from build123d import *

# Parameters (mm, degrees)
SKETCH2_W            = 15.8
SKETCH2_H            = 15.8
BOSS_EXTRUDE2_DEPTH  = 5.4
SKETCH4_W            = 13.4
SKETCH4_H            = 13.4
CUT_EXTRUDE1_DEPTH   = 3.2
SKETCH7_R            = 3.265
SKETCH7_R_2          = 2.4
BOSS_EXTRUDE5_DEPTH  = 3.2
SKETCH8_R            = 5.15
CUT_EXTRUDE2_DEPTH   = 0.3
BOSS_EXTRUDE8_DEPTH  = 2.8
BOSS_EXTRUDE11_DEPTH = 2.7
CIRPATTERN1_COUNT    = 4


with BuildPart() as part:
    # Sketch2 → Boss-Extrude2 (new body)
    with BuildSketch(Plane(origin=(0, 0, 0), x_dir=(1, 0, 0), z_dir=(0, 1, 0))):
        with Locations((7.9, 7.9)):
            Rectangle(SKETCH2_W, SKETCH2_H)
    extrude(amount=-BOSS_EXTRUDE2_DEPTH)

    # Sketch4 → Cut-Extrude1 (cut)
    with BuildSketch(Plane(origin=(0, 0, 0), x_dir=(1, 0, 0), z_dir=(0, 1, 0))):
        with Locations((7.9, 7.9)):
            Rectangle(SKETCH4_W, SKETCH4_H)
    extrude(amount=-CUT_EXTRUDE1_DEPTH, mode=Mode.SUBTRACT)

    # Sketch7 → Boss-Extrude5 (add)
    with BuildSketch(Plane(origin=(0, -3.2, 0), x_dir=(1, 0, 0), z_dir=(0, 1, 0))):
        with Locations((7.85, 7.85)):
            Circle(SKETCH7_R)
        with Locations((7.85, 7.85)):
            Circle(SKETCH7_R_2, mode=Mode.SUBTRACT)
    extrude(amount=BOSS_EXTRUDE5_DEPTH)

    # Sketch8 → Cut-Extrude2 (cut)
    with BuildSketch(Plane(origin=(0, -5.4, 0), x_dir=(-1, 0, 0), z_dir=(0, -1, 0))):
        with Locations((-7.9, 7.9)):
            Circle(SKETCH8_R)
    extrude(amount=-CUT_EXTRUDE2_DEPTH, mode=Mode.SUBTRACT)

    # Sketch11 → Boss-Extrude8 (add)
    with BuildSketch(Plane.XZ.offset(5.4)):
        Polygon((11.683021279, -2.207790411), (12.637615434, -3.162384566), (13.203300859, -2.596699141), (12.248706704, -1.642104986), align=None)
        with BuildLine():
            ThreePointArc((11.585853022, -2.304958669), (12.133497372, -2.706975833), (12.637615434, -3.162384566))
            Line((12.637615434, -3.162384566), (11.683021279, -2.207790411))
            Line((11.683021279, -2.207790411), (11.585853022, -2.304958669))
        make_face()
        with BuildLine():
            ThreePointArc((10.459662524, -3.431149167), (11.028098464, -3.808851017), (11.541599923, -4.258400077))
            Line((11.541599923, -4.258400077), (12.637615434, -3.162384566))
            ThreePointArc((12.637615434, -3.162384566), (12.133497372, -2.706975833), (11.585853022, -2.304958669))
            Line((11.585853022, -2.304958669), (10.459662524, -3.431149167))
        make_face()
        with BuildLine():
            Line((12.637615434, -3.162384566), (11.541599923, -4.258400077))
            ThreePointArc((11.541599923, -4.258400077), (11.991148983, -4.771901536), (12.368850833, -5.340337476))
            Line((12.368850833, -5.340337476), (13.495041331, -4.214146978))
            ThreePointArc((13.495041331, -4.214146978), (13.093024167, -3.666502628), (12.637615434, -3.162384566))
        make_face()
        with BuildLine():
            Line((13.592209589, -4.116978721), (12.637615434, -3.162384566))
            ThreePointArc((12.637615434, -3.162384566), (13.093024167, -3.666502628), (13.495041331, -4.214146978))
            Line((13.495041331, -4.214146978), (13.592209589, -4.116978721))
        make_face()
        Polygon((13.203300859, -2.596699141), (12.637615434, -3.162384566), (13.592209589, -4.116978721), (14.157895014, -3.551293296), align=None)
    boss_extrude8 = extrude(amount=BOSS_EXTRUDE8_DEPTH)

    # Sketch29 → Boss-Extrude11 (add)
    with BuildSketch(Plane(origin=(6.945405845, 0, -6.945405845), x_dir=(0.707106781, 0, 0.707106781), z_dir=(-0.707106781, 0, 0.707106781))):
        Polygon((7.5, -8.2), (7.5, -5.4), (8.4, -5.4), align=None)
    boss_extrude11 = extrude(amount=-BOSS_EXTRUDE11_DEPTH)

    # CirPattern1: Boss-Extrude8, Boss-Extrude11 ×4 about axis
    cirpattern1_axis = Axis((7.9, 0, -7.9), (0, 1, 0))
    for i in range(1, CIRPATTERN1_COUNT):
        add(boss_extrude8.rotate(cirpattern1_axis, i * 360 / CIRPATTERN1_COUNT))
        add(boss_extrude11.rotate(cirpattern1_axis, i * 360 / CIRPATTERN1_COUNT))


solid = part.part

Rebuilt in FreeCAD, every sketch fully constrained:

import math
import FreeCAD as App
import Part
import Sketcher

V = App.Vector
Q = App.Units.Quantity

doc = App.newDocument("Part")
body = doc.addObject("PartDesign::Body", "Body")

# Sketch on XZ plane
sketch1 = doc.addObject("Sketcher::SketchObject", "Sketch")
body.addObject(sketch1)
sketch1.AttachmentSupport = (doc.XZ_Plane, [""])
sketch1.MapMode = "FlatFace"
sketch1.addGeometry(Part.LineSegment(V(0, -16, 0), V(0, 0, 0)), False)
sketch1.addGeometry(Part.LineSegment(V(0, 0, 0), V(16, 0, 0)), False)
sketch1.addGeometry(Part.LineSegment(V(16, 0, 0), V(16, -16, 0)), False)
sketch1.addGeometry(Part.LineSegment(V(16, -16, 0), V(0, -16, 0)), False)
sketch1.addConstraint(Sketcher.Constraint("Coincident", 0, 2, 1, 1))
sketch1.addConstraint(Sketcher.Constraint("Coincident", 1, 2, 2, 1))
sketch1.addConstraint(Sketcher.Constraint("Coincident", 2, 2, 3, 1))
sketch1.addConstraint(Sketcher.Constraint("Coincident", 3, 2, 0, 1))
sketch1.addConstraint(Sketcher.Constraint("Vertical", 0))
sketch1.addConstraint(Sketcher.Constraint("Horizontal", 1))
sketch1.addConstraint(Sketcher.Constraint("Vertical", 2))
sketch1.addConstraint(Sketcher.Constraint("Horizontal", 3))
sketch1.addConstraint(Sketcher.Constraint("Coincident", 0, 2, -1, 1))
sketch1.addConstraint(Sketcher.Constraint("Equal", 3, 0))
sketch1.addConstraint(Sketcher.Constraint("DistanceX", 1, 1, 1, 2, 15.8))
pad1 = doc.addObject("PartDesign::Pad", "Pad")
body.addObject(pad1)
pad1.Profile = sketch1
pad1.Length = 5.4

# Sketch on XZ plane
sketch2 = doc.addObject("Sketcher::SketchObject", "Sketch001")
body.addObject(sketch2)
sketch2.AttachmentSupport = (doc.XZ_Plane, [""])
sketch2.MapMode = "FlatFace"
sketch2.addGeometry(Part.LineSegment(V(1, -15, 0), V(1, -1, 0)), False)
sketch2.addGeometry(Part.LineSegment(V(1, -1, 0), V(15, -1, 0)), False)
sketch2.addGeometry(Part.LineSegment(V(15, -1, 0), V(15, -15, 0)), False)
sketch2.addGeometry(Part.LineSegment(V(15, -15, 0), V(1, -15, 0)), False)
sketch2.addConstraint(Sketcher.Constraint("Coincident", 0, 2, 1, 1))
sketch2.addConstraint(Sketcher.Constraint("Coincident", 1, 2, 2, 1))
sketch2.addConstraint(Sketcher.Constraint("Coincident", 2, 2, 3, 1))
sketch2.addConstraint(Sketcher.Constraint("Coincident", 3, 2, 0, 1))
sketch2.addConstraint(Sketcher.Constraint("Vertical", 0))
sketch2.addConstraint(Sketcher.Constraint("Horizontal", 1))
sketch2.addConstraint(Sketcher.Constraint("Vertical", 2))
sketch2.addConstraint(Sketcher.Constraint("Horizontal", 3))
sketch2.addConstraint(Sketcher.Constraint("Equal", 3, 0))
sketch2.addConstraint(Sketcher.Constraint("DistanceX", 1, 1, 1, 2, 13.4))
sketch2.addConstraint(Sketcher.Constraint("DistanceX", -1, 1, 0, 2, 1.2))
sketch2.addConstraint(Sketcher.Constraint("DistanceY", 0, 2, -1, 1, 1.2))
pocket1 = doc.addObject("PartDesign::Pocket", "Pocket")
body.addObject(pocket1)
pocket1.Profile = sketch2
pocket1.Length = 3.2
pocket1.Reversed = True

# Sketch on XZ plane
sketch3 = doc.addObject("Sketcher::SketchObject", "Sketch002")
body.addObject(sketch3)
sketch3.AttachmentSupport = (doc.XZ_Plane, [""])
sketch3.MapMode = "FlatFace"
sketch3.AttachmentOffset = App.Placement(V(0, 0, 3.2), App.Rotation())
sketch3.addGeometry(Part.Circle(V(7.8, -7.8, 0), V(0, 0, 1), 3.3), False)
sketch3.addGeometry(Part.Circle(V(7.8, -7.8, 0), V(0, 0, 1), 2.4), False)
sketch3.addConstraint(Sketcher.Constraint("Coincident", 1, 3, 0, 3))
sketch3.addConstraint(Sketcher.Constraint("Diameter", 1, 4.8))
sketch3.addConstraint(Sketcher.Constraint("Diameter", 0, 6.53))
sketch3.addConstraint(Sketcher.Constraint("DistanceX", -1, 1, 0, 3, 7.85))
sketch3.addConstraint(Sketcher.Constraint("DistanceY", 0, 3, -1, 1, 7.85))
pad2 = doc.addObject("PartDesign::Pad", "Pad001")
body.addObject(pad2)
pad2.Profile = sketch3
pad2.Length = 3.2
pad2.Reversed = True

# Sketch on XZ plane
sketch4 = doc.addObject("Sketcher::SketchObject", "Sketch003")
body.addObject(sketch4)
sketch4.AttachmentSupport = (doc.XZ_Plane, [""])
sketch4.MapMode = "FlatFace"
sketch4.AttachmentOffset = App.Placement(V(0, 0, 5.4), App.Rotation())
sketch4.addGeometry(Part.Circle(V(8, -8, 0), V(0, 0, 1), 5), False)
sketch4.addConstraint(Sketcher.Constraint("Diameter", 0, 10.3))
sketch4.addConstraint(Sketcher.Constraint("DistanceX", -1, 1, 0, 3, 7.9))
sketch4.addConstraint(Sketcher.Constraint("DistanceY", 0, 3, -1, 1, 7.9))
pocket2 = doc.addObject("PartDesign::Pocket", "Pocket001")
body.addObject(pocket2)
pocket2.Profile = sketch4
pocket2.Length = 0.3

# Sketch on XZ plane
sketch5 = doc.addObject("Sketcher::SketchObject", "Sketch004")
body.addObject(sketch5)
sketch5.AttachmentSupport = (doc.XZ_Plane, [""])
sketch5.MapMode = "FlatFace"
sketch5.AttachmentOffset = App.Placement(V(0, 0, 5.4), App.Rotation())
sketch5.addGeometry(Part.LineSegment(V(12.25, -1.64, 0), V(11.68, -2.21, 0)), False)
sketch5.addGeometry(Part.LineSegment(V(11.68, -2.21, 0), V(11.59, -2.3, 0)), False)
sketch5.addGeometry(Part.LineSegment(V(11.59, -2.3, 0), V(10.46, -3.43, 0)), False)
sketch5.addGeometry(Part.ArcOfCircle(Part.Circle(V(7.9, -7.9, 0), V(0, 0, 1), 5.15), math.radians(45), math.radians(60.2)), False)
sketch5.addGeometry(Part.ArcOfCircle(Part.Circle(V(7.9, -7.9, 0), V(0, 0, 1), 5.15), math.radians(29.8), math.radians(45)), False)
sketch5.addGeometry(Part.LineSegment(V(12.37, -5.34, 0), V(13.5, -4.21, 0)), False)
sketch5.addGeometry(Part.LineSegment(V(13.5, -4.21, 0), V(13.59, -4.12, 0)), False)
sketch5.addGeometry(Part.LineSegment(V(13.59, -4.12, 0), V(14.16, -3.55, 0)), False)
sketch5.addGeometry(Part.LineSegment(V(14.16, -3.55, 0), V(12.25, -1.64, 0)), False)
sketch5.addConstraint(Sketcher.Constraint("Coincident", 0, 2, 1, 1))
sketch5.addConstraint(Sketcher.Constraint("Coincident", 1, 2, 2, 1))
sketch5.addConstraint(Sketcher.Constraint("Coincident", 2, 2, 3, 2))
sketch5.addConstraint(Sketcher.Constraint("Tangent", 3, 1, 4, 2))
sketch5.addConstraint(Sketcher.Constraint("Coincident", 4, 1, 5, 1))
sketch5.addConstraint(Sketcher.Constraint("Coincident", 5, 2, 6, 1))
sketch5.addConstraint(Sketcher.Constraint("Coincident", 6, 2, 7, 1))
sketch5.addConstraint(Sketcher.Constraint("Coincident", 7, 2, 8, 1))
sketch5.addConstraint(Sketcher.Constraint("Coincident", 8, 2, 0, 1))
sketch5.addConstraint(Sketcher.Constraint("Equal", 3, 4))
sketch5.addConstraint(Sketcher.Constraint("Parallel", 0, 1))
sketch5.addConstraint(Sketcher.Constraint("Parallel", 1, 2))
sketch5.addConstraint(Sketcher.Constraint("Parallel", 2, 5))
sketch5.addConstraint(Sketcher.Constraint("Parallel", 5, 6))
sketch5.addConstraint(Sketcher.Constraint("Parallel", 6, 7))
sketch5.addConstraint(Sketcher.Constraint("Perpendicular", 7, 8))
sketch5.addConstraint(Sketcher.Constraint("Equal", 2, 5))
sketch5.addConstraint(Sketcher.Constraint("Equal", 1, 6))
sketch5.addConstraint(Sketcher.Constraint("Equal", 0, 7))
sketch5.addConstraint(Sketcher.Constraint("Angle", 0, Q("-135 deg")))
sketch5.addConstraint(Sketcher.Constraint("Radius", 3, 5.15))
sketch5.addConstraint(Sketcher.Constraint("Distance", 0, 0.8))
sketch5.addConstraint(Sketcher.Constraint("Distance", 8, 2.7))
sketch5.addConstraint(Sketcher.Constraint("DistanceX", -1, 1, 3, 3, 7.9))
sketch5.addConstraint(Sketcher.Constraint("DistanceY", 3, 3, -1, 1, 7.9))
sketch5.addConstraint(Sketcher.Constraint("DistanceX", -1, 1, 3, 1, 11.5416))
sketch5.addConstraint(Sketcher.Constraint("DistanceX", -1, 1, 0, 2, 11.683021))
sketch5.addConstraint(Sketcher.Constraint("DistanceY", 1, 2, -1, 1, 2.304959))
pad3 = doc.addObject("PartDesign::Pad", "Pad002")
body.addObject(pad3)
pad3.Profile = sketch5
pad3.Length = 2.8

# Sketch on an angled plane
sketch6 = doc.addObject("Sketcher::SketchObject", "Sketch005")
body.addObject(sketch6)
sketch6.Placement = App.Placement(V(6.945406, 0, -6.945406), App.Rotation(V(0.707106781, 0, 0.707106781), V(0, 0.999999999, 0), V(-0.707106781, 0, 0.707106781), "ZXY"))
sketch6.addGeometry(Part.LineSegment(V(7.5, -5.4, 0), V(7.5, -8.2, 0)), False)
sketch6.addGeometry(Part.LineSegment(V(7.5, -8.2, 0), V(8.4, -5.4, 0)), False)
sketch6.addGeometry(Part.LineSegment(V(8.4, -5.4, 0), V(7.5, -5.4, 0)), False)
sketch6.addConstraint(Sketcher.Constraint("Coincident", 0, 2, 1, 1))
sketch6.addConstraint(Sketcher.Constraint("Coincident", 1, 2, 2, 1))
sketch6.addConstraint(Sketcher.Constraint("Coincident", 2, 2, 0, 1))
sketch6.addConstraint(Sketcher.Constraint("Vertical", 0))
sketch6.addConstraint(Sketcher.Constraint("Horizontal", 2))
sketch6.addConstraint(Sketcher.Constraint("DistanceX", 2, 2, 2, 1, 0.9))
sketch6.addConstraint(Sketcher.Constraint("DistanceY", 0, 2, 0, 1, 2.8))
sketch6.addConstraint(Sketcher.Constraint("DistanceX", -1, 1, 0, 2, 7.5))
sketch6.addConstraint(Sketcher.Constraint("DistanceY", 0, 2, -1, 1, 8.2))
pad4 = doc.addObject("PartDesign::Pad", "Pad003")
body.addObject(pad4)
pad4.Profile = sketch6
pad4.Length = 2.7
pad4.Reversed = True
doc.recompute()

datumline = doc.addObject("PartDesign::Line", "DatumLine")
body.addObject(datumline)
datumline.Placement = App.Placement(V(7.9, 0, -7.9), App.Rotation(V(0, 0, 1), V(0, 1, 0)))
polarpattern = doc.addObject("PartDesign::PolarPattern", "PolarPattern")
body.addObject(polarpattern)
polarpattern.Originals = [pad3, pad4]
polarpattern.Axis = (datumline, [""])
polarpattern.Angle = 360
polarpattern.Occurrences = 4
body.Tip = polarpattern

doc.recompute()
